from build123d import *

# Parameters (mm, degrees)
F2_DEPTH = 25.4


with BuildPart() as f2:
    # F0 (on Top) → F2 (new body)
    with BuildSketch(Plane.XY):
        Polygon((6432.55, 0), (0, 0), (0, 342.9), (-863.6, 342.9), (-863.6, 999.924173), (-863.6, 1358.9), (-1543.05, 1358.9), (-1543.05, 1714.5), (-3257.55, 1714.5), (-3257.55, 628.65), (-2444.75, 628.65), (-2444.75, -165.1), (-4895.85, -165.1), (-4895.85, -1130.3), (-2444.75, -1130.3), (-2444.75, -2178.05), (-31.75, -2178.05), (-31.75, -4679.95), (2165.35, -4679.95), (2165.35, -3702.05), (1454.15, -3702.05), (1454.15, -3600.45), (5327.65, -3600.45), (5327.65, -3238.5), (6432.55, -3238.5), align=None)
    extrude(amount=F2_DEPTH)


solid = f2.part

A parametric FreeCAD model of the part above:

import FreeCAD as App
import Part
import Sketcher
Q = App.Units.Quantity

doc = App.newDocument("Part")
params = doc.addObject("Spreadsheet::Sheet", "Params")
for row, (alias, value) in enumerate([
    ("sketch1_width", "34 in"),
    ("sketch1_width2", "32 in"),
    ("sketch1_width3", "95 in"),
    ("sketch1_width4", "28 in"),
    ("sketch1_height", "40 in"),
    ("pad1_length", "1 in"),
], start=1):
    params.set(f"A{row}", alias)
    params.set(f"B{row}", "=" + value)
    params.setAlias(f"B{row}", alias)

body = doc.addObject("PartDesign::Body", "Body")

sketch1 = doc.addObject("Sketcher::SketchObject", "Sketch")
body.addObject(sketch1)
sketch1.AttachmentSupport = (doc.XY_Plane, [""])
sketch1.MapMode = "FlatFace"
sketch1.addGeometry([
    Part.LineSegment(App.Vector(6433, 0, 0), App.Vector(0, 0, 0)),
    Part.LineSegment(App.Vector(0, 0, 0), App.Vector(0, 343, 0)),
    Part.LineSegment(App.Vector(0, 343, 0), App.Vector(-864, 343, 0)),
    Part.LineSegment(App.Vector(-864, 343, 0), App.Vector(-864, 1359, 0)),
    Part.LineSegment(App.Vector(-864, 1359, 0), App.Vector(-1543, 1359, 0)),
    Part.LineSegment(App.Vector(-1543, 1359, 0), App.Vector(-1543, 1714, 0)),
    Part.LineSegment(App.Vector(-1543, 1714, 0), App.Vector(-3258, 1714, 0)),
    Part.LineSegment(App.Vector(-3258, 1714, 0), App.Vector(-3258, 629, 0)),
    Part.LineSegment(App.Vector(-3258, 629, 0), App.Vector(-2445, 629, 0)),
    Part.LineSegment(App.Vector(-2445, 629, 0), App.Vector(-2445, -165, 0)),
    Part.LineSegment(App.Vector(-2445, -165, 0), App.Vector(-4896, -165, 0)),
    Part.LineSegment(App.Vector(-4896, -165, 0), App.Vector(-4896, -1130, 0)),
    Part.LineSegment(App.Vector(-4896, -1130, 0), App.Vector(-2445, -1130, 0)),
    Part.LineSegment(App.Vector(-2445, -1130, 0), App.Vector(-2445, -2178, 0)),
    Part.LineSegment(App.Vector(-2445, -2178, 0), App.Vector(-32, -2178, 0)),
    Part.LineSegment(App.Vector(-32, -2178, 0), App.Vector(-32, -4680, 0)),
    Part.LineSegment(App.Vector(-32, -4680, 0), App.Vector(2165, -4680, 0)),
    Part.LineSegment(App.Vector(2165, -4680, 0), App.Vector(2165, -3702, 0)),
    Part.LineSegment(App.Vector(2165, -3702, 0), App.Vector(1454, -3702, 0)),
    Part.LineSegment(App.Vector(1454, -3702, 0), App.Vector(1454, -3600, 0)),
    Part.LineSegment(App.Vector(1454, -3600, 0), App.Vector(5328, -3600, 0)),
    Part.LineSegment(App.Vector(5328, -3600, 0), App.Vector(5328, -3238, 0)),
    Part.LineSegment(App.Vector(5328, -3238, 0), App.Vector(6433, -3238, 0)),
    Part.LineSegment(App.Vector(6433, -3238, 0), App.Vector(6433, 0, 0)),
], False)
sketch1.addConstraint([
    Sketcher.Constraint("Coincident", 0, 2, 1, 1),
    Sketcher.Constraint("Coincident", 1, 2, 2, 1),
    Sketcher.Constraint("Coincident", 2, 2, 3, 1),
    Sketcher.Constraint("Coincident", 3, 2, 4, 1),
    Sketcher.Constraint("Coincident", 4, 2, 5, 1),
    Sketcher.Constraint("Coincident", 5, 2, 6, 1),
    Sketcher.Constraint("Coincident", 6, 2, 7, 1),
    Sketcher.Constraint("Coincident", 7, 2, 8, 1),
    Sketcher.Constraint("Coincident", 8, 2, 9, 1),
    Sketcher.Constraint("Coincident", 9, 2, 10, 1),
    Sketcher.Constraint("Coincident", 10, 2, 11, 1),
    Sketcher.Constraint("Coincident", 11, 2, 12, 1),
    Sketcher.Constraint("Coincident", 12, 2, 13, 1),
    Sketcher.Constraint("Coincident", 13, 2, 14, 1),
    Sketcher.Constraint("Coincident", 14, 2, 15, 1),
    Sketcher.Constraint("Coincident", 15, 2, 16, 1),
    Sketcher.Constraint("Coincident", 16, 2, 17, 1),
    Sketcher.Constraint("Coincident", 17, 2, 18, 1),
    Sketcher.Constraint("Coincident", 18, 2, 19, 1),
    Sketcher.Constraint("Coincident", 19, 2, 20, 1),
    Sketcher.Constraint("Coincident", 20, 2, 21, 1),
    Sketcher.Constraint("Coincident", 21, 2, 22, 1),
    Sketcher.Constraint("Coincident", 22, 2, 23, 1),
    Sketcher.Constraint("Coincident", 23, 2, 0, 1),
    Sketcher.Constraint("Horizontal", 0),
    Sketcher.Constraint("Vertical", 1),
    Sketcher.Constraint("Horizontal", 2),
    Sketcher.Constraint("Vertical", 3),
    Sketcher.Constraint("Horizontal", 4),
    Sketcher.Constraint("Vertical", 5),
    Sketcher.Constraint("Horizontal", 6),
    Sketcher.Constraint("Vertical", 7),
    Sketcher.Constraint("Horizontal", 8),
    Sketcher.Constraint("Vertical", 9),
    Sketcher.Constraint("Horizontal", 10),
    Sketcher.Constraint("Vertical", 11),
    Sketcher.Constraint("Horizontal", 12),
    Sketcher.Constraint("Vertical", 13),
    Sketcher.Constraint("Horizontal", 14),
    Sketcher.Constraint("Vertical", 15),
    Sketcher.Constraint("Horizontal", 16),
    Sketcher.Constraint("Vertical", 17),
    Sketcher.Constraint("Horizontal", 18),
    Sketcher.Constraint("Vertical", 19),
    Sketcher.Constraint("Horizontal", 20),
    Sketcher.Constraint("Vertical", 21),
    Sketcher.Constraint("Horizontal", 22),
    Sketcher.Constraint("Vertical", 23),
    Sketcher.Constraint("Coincident", 0, 2, -1, 1),
    Sketcher.Constraint("Vertical", 9, 2, 12, 2),
    Sketcher.Constraint("DistanceX", 2, 2, 2, 1, Q("34 in")),
    Sketcher.Constraint("DistanceX", 8, 1, 8, 2, Q("32 in")),
    Sketcher.Constraint("DistanceX", 14, 1, 14, 2, Q("95 in")),
    Sketcher.Constraint("DistanceX", 18, 2, 18, 1, Q("28 in")),
    Sketcher.Constraint("DistanceY", 3, 1, 3, 2, Q("40 in")),
    Sketcher.Constraint("DistanceY", 5, 1, 5, 2, Q("14 in")),
    Sketcher.Constraint("DistanceY", 11, 2, 11, 1, Q("38 in")),
    Sketcher.Constraint("DistanceY", 19, 1, 19, 2, Q("4 in")),
    Sketcher.Constraint("DistanceX", 6, 2, 6, 1, Q("67.5 in")),
    Sketcher.Constraint("DistanceX", 10, 2, 10, 1, Q("96.5 in")),
    Sketcher.Constraint("DistanceX", 16, 1, 16, 2, Q("86.5 in")),
    Sketcher.Constraint("DistanceX", 20, 1, 20, 2, Q("152.5 in")),
    Sketcher.Constraint("DistanceX", 22, 1, 22, 2, Q("43.5 in")),
    Sketcher.Constraint("DistanceY", 1, 1, 1, 2, Q("13.5 in")),
    Sketcher.Constraint("DistanceY", 15, 2, 15, 1, Q("98.5 in")),
    Sketcher.Constraint("DistanceY", 17, 1, 17, 2, Q("38.5 in")),
    Sketcher.Constraint("DistanceY", 23, 1, 23, 2, Q("127.5 in")),
    Sketcher.Constraint("DistanceY", 9, 2, 2, 2, Q("20 in")),
    Sketcher.Constraint("DistanceX", 0, 2, 0, 1, Q("253.25 in")),
    Sketcher.Constraint("DistanceY", 7, 2, 7, 1, Q("42.75 in")),
    Sketcher.Constraint("DistanceY", 13, 2, 13, 1, Q("41.25 in")),
])
sketch1.setExpression("Constraints[50]", "Params.sketch1_width")
sketch1.setExpression("Constraints[51]", "Params.sketch1_width2")
sketch1.setExpression("Constraints[52]", "Params.sketch1_width3")
sketch1.setExpression("Constraints[53]", "Params.sketch1_width4")
sketch1.setExpression("Constraints[54]", "Params.sketch1_height")
pad1 = doc.addObject("PartDesign::Pad", "Pad")
body.addObject(pad1)
pad1.Profile = sketch1
pad1.setExpression("Length", "Params.pad1_length")

doc.recompute()
